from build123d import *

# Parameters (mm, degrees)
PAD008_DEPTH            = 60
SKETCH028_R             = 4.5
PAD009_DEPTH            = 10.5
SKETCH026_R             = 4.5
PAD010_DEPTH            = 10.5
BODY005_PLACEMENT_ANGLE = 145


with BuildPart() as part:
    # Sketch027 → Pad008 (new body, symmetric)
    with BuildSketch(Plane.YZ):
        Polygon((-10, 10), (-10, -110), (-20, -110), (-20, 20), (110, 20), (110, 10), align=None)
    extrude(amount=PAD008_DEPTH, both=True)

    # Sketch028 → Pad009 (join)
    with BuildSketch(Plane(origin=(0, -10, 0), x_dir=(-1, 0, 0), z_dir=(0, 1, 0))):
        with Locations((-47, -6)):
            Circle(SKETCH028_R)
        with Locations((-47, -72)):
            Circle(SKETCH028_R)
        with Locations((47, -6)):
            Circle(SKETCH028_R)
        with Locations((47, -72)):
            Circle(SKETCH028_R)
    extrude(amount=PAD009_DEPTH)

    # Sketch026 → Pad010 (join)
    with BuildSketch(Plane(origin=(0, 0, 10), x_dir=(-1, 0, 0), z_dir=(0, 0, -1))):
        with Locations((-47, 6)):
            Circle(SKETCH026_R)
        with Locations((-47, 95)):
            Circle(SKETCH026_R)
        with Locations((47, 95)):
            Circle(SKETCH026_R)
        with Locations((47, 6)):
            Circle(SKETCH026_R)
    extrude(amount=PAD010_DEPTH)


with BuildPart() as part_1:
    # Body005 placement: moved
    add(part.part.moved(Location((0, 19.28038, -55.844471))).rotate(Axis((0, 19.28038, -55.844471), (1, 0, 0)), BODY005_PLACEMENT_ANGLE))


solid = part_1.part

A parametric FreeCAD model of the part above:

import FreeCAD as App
import Part
import Sketcher

V = App.Vector


def add_polygon(sketch, points):
    """Adds a closed chain of lines whose ends are joined by coincident constraints."""
    first, n = sketch.GeometryCount, len(points)
    for a, b in zip(points, points[1:] + points[:1]):
        sketch.addGeometry(Part.LineSegment(App.Vector(*a, 0), App.Vector(*b, 0)), False)
    for i in range(n):
        sketch.addConstraint(Sketcher.Constraint("Coincident", first + i, 2, first + (i + 1) % n, 1))

doc = App.newDocument("Part")
body = doc.addObject("PartDesign::Body", "Body")

# Sketch on YZ plane
sketch1 = body.newObject("Sketcher::SketchObject", "Sketch")
sketch1.AttachmentSupport = (doc.getObject("YZ_Plane"), [""])
sketch1.MapMode = "FlatFace"
add_polygon(sketch1, [(-10, -110), (-10, 10), (110, 10), (110, 20), (-20, 20), (-20, -110)])  # lines 0-5
sketch1.addConstraint(Sketcher.Constraint("Vertical", 0))
sketch1.addConstraint(Sketcher.Constraint("Horizontal", 1))
sketch1.addConstraint(Sketcher.Constraint("Vertical", 2))
sketch1.addConstraint(Sketcher.Constraint("Horizontal", 3))
sketch1.addConstraint(Sketcher.Constraint("Vertical", 4))
sketch1.addConstraint(Sketcher.Constraint("Horizontal", 5))
sketch1.addConstraint(Sketcher.Constraint("Equal", 1, 0))
sketch1.addConstraint(Sketcher.Constraint("Equal", 5, 2))
sketch1.addConstraint(Sketcher.Constraint("DistanceX", 1, 1, 1, 2, 120.0))
sketch1.addConstraint(Sketcher.Constraint("DistanceX", 3, 2, 3, 1, 130.0))
sketch1.addConstraint(Sketcher.Constraint("DistanceX", 0, 2, -1, 1, 10.0))
sketch1.addConstraint(Sketcher.Constraint("DistanceY", -1, 1, 0, 2, 10.0))
pad1 = body.newObject("PartDesign::Pad", "Pad")
pad1.Profile = sketch1
pad1.Length = 120
pad1.Midplane = True

# Sketch on XZ plane
sketch2 = body.newObject("Sketcher::SketchObject", "Sketch001")
sketch2.AttachmentSupport = (doc.getObject("XZ_Plane"), [""])
sketch2.MapMode = "FlatFace"
sketch2.AttachmentOffset = App.Placement(V(0, 0, 10), App.Rotation())
sketch2.addGeometry(Part.Circle(V(47, -6, 0), V(0, 0, 1), 4.5), False)
sketch2.addGeometry(Part.Circle(V(47, -72, 0), V(0, 0, 1), 4.5), False)
sketch2.addGeometry(Part.Circle(V(-47, -6, 0), V(0, 0, 1), 4.5), False)
sketch2.addGeometry(Part.Circle(V(-47, -72, 0), V(0, 0, 1), 4.5), False)
sketch2.addConstraint(Sketcher.Constraint("Equal", 0, 1))
sketch2.addConstraint(Sketcher.Constraint("Equal", 1, 2))
sketch2.addConstraint(Sketcher.Constraint("Equal", 2, 3))
sketch2.addConstraint(Sketcher.Constraint("Symmetric", 0, 3, 2, 3, -2))
sketch2.addConstraint(Sketcher.Constraint("Symmetric", 1, 3, 3, 3, -2))
sketch2.addConstraint(Sketcher.Constraint("Vertical", 0, 3, 1, 3))
sketch2.addConstraint(Sketcher.Constraint("Diameter", 0, 9.0))
sketch2.addConstraint(Sketcher.Constraint("DistanceX", -1, 1, 0, 3, 47.0))
sketch2.addConstraint(Sketcher.Constraint("DistanceY", 0, 3, -1, 1, 6.0))
sketch2.addConstraint(Sketcher.Constraint("DistanceY", 1, 3, -1, 1, 72.0))
pad2 = body.newObject("PartDesign::Pad", "Pad001")
pad2.Profile = sketch2
pad2.Length = 10.5
pad2.Reversed = True

# Sketch on XY plane
sketch3 = body.newObject("Sketcher::SketchObject", "Sketch002")
sketch3.AttachmentSupport = (doc.getObject("XY_Plane"), [""])
sketch3.MapMode = "FlatFace"
sketch3.AttachmentOffset = App.Placement(V(0, 0, 10), App.Rotation())
sketch3.addGeometry(Part.Circle(V(47, 6, 0), V(0, 0, 1), 4.5), False)
sketch3.addGeometry(Part.Circle(V(47, 95, 0), V(0, 0, 1), 4.5), False)
sketch3.addGeometry(Part.Circle(V(-47, 95, 0), V(0, 0, 1), 4.5), False)
sketch3.addGeometry(Part.Circle(V(-47, 6, 0), V(0, 0, 1), 4.5), False)
sketch3.addConstraint(Sketcher.Constraint("Equal", 0, 1))
sketch3.addConstraint(Sketcher.Constraint("Equal", 1, 2))
sketch3.addConstraint(Sketcher.Constraint("Equal", 2, 3))
sketch3.addConstraint(Sketcher.Constraint("Symmetric", 1, 3, 2, 3, -2))
sketch3.addConstraint(Sketcher.Constraint("Symmetric", 0, 3, 3, 3, -2))
sketch3.addConstraint(Sketcher.Constraint("Vertical", 0, 3, 1, 3))
sketch3.addConstraint(Sketcher.Constraint("Diameter", 0, 9.0))
sketch3.addConstraint(Sketcher.Constraint("DistanceX", -1, 1, 0, 3, 47.0))
sketch3.addConstraint(Sketcher.Constraint("DistanceY", -1, 1, 0, 3, 6.0))
sketch3.addConstraint(Sketcher.Constraint("DistanceY", -1, 1, 1, 3, 95.0))
pad3 = body.newObject("PartDesign::Pad", "Pad002")
pad3.Profile = sketch3
pad3.Length = 10.5
pad3.Reversed = True
body2 = doc.addObject("PartDesign::Body", "Body001")
doc.recompute()

body.Placement = App.Placement(V(0, 19.28038, -55.844471), App.Rotation(V(1, 0, 0), 145))
boolean = body2.newObject("PartDesign::Boolean", "Boolean")
boolean.Type = "Fuse"
boolean.addObjects([body])

doc.recompute()
